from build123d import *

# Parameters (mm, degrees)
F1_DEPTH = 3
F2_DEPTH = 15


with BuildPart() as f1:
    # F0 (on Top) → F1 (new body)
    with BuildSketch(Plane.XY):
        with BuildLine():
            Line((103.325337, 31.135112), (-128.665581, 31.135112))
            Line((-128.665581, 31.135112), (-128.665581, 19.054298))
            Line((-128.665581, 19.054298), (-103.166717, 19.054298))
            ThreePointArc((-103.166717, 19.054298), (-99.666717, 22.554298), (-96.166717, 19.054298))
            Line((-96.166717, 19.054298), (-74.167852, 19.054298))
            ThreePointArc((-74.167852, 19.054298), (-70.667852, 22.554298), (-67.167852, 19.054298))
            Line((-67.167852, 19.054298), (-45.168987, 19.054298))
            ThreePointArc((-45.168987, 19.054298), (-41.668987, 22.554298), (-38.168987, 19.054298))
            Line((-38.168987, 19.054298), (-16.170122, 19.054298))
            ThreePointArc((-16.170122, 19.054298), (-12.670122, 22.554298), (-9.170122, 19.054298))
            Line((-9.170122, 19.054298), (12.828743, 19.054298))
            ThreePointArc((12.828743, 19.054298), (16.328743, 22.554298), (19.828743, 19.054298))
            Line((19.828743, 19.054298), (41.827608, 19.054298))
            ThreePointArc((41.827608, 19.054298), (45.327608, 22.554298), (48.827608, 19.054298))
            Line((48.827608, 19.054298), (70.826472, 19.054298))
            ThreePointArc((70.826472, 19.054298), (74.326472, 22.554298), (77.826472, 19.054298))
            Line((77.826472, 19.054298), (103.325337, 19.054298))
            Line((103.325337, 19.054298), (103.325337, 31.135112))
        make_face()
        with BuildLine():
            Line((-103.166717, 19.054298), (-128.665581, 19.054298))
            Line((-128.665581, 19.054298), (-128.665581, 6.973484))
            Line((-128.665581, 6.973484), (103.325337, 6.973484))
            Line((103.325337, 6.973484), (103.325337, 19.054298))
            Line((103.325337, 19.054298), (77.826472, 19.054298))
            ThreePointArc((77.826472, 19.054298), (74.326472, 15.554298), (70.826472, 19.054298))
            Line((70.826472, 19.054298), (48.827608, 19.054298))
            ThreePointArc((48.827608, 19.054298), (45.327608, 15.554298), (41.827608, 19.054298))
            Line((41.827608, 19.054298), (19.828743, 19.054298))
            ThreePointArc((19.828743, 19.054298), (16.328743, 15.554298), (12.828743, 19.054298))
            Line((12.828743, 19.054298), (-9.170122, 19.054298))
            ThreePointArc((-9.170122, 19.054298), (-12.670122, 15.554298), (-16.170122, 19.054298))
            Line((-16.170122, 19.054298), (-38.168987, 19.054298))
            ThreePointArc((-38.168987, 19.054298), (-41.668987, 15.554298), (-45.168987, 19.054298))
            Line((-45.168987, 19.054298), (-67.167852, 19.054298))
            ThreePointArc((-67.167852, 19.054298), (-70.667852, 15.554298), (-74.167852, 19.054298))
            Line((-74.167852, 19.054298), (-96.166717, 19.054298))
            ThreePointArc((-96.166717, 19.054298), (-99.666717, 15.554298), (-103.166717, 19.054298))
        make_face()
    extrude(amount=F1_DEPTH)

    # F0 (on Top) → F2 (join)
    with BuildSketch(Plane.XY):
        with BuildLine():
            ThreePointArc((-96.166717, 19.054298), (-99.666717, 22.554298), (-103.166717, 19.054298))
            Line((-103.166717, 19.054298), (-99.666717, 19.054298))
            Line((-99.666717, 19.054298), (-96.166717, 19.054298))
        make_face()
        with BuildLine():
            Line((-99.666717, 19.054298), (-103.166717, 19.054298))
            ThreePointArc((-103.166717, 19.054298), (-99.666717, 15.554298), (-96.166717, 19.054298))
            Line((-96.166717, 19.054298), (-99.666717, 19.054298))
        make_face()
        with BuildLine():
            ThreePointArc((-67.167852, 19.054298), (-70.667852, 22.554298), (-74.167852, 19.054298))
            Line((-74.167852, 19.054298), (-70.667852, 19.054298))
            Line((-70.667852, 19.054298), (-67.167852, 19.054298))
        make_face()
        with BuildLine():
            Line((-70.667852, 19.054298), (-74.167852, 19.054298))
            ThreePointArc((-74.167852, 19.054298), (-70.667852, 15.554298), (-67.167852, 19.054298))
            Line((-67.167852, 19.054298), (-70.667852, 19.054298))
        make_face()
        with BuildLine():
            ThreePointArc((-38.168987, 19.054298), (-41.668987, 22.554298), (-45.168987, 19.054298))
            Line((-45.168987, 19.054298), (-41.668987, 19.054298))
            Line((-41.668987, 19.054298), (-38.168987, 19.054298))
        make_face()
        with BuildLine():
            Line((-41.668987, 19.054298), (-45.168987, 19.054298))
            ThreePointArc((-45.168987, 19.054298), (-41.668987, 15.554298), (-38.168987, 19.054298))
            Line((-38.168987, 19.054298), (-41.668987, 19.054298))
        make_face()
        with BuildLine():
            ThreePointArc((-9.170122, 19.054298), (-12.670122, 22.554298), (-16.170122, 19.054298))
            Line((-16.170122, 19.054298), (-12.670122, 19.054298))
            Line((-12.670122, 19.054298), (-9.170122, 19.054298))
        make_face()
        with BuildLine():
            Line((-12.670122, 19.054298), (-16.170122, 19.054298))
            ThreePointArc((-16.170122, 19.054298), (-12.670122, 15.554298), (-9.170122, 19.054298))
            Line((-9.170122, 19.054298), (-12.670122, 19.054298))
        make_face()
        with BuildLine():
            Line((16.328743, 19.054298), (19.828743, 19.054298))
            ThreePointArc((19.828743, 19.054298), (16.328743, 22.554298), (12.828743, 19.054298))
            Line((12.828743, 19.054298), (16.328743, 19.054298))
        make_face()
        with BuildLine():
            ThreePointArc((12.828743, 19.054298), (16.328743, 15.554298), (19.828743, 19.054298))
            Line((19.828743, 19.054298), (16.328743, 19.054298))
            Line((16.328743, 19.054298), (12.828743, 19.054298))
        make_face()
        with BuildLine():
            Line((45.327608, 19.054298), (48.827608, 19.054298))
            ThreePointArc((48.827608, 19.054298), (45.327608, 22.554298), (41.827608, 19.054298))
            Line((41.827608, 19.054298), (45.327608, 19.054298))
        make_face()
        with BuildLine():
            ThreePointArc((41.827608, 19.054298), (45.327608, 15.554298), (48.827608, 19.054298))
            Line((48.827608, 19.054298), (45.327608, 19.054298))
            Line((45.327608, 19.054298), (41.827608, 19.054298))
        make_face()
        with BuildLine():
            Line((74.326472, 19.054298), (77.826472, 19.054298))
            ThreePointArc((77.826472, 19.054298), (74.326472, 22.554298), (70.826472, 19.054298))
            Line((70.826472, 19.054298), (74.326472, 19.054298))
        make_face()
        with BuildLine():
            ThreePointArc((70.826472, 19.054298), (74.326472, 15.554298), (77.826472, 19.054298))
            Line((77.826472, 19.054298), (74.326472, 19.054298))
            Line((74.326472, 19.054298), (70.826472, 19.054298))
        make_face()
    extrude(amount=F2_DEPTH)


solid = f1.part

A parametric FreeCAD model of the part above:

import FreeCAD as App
import Part
import Sketcher
from FreeCAD import Vector
Q = App.Units.Quantity


def add_polygon(sketch, points):
    """Adds a closed chain of lines whose ends are joined by coincident constraints."""
    first, n = sketch.GeometryCount, len(points)
    for a, b in zip(points, points[1:] + points[:1]):
        sketch.addGeometry(Part.LineSegment(App.Vector(*a, 0), App.Vector(*b, 0)), False)
    for i in range(n):
        sketch.addConstraint(Sketcher.Constraint("Coincident", first + i, 2, first + (i + 1) % n, 1))

doc = App.newDocument("Part")
params = doc.addObject("Spreadsheet::Sheet", "Params")
for row, (alias, value) in enumerate([
    ("sketch1_diameter", "7 mm"),
    ("pad1_length", "3 mm"),
    ("sketch2_diameter", "7 mm"),
    ("pad2_length", "15 mm"),
], start=1):
    params.set(f"A{row}", alias)
    params.set(f"B{row}", "=" + value)
    params.setAlias(f"B{row}", alias)

body = doc.addObject("PartDesign::Body", "Body")

# Sketch on XY plane
sketch1 = body.newObject("Sketcher::SketchObject", "Sketch")
sketch1.AttachmentSupport = (doc.getObject("XY_Plane"), [""])
sketch1.MapMode = "FlatFace"
add_polygon(sketch1, [(103.3, 31.1), (-128.7, 31.1), (-128.7, 7), (103.3, 7)])  # lines 0-3
sketch1.addGeometry(Part.Circle(Vector(-99.7, 19.1, 0), Vector(0, 0, 1), 3.5), False)  # 4
sketch1.addGeometry(Part.Circle(Vector(-70.7, 19.1, 0), Vector(0, 0, 1), 3.5), False)  # 5
sketch1.addGeometry(Part.Circle(Vector(-41.7, 19.1, 0), Vector(0, 0, 1), 3.5), False)  # 6
sketch1.addGeometry(Part.Circle(Vector(-12.7, 19.1, 0), Vector(0, 0, 1), 3.5), False)  # 7
sketch1.addGeometry(Part.Circle(Vector(16.3, 19.1, 0), Vector(0, 0, 1), 3.5), False)  # 8
sketch1.addGeometry(Part.Circle(Vector(45.3, 19.1, 0), Vector(0, 0, 1), 3.5), False)  # 9
sketch1.addGeometry(Part.Circle(Vector(74.3, 19.1, 0), Vector(0, 0, 1), 3.5), False)  # 10
sketch1.addConstraint(Sketcher.Constraint("Horizontal", 0))
sketch1.addConstraint(Sketcher.Constraint("Vertical", 1))
sketch1.addConstraint(Sketcher.Constraint("Horizontal", 2))
sketch1.addConstraint(Sketcher.Constraint("Vertical", 3))
sketch1.addConstraint(Sketcher.Constraint("Equal", 4, 5))
sketch1.addConstraint(Sketcher.Constraint("Equal", 5, 6))
sketch1.addConstraint(Sketcher.Constraint("Equal", 6, 7))
sketch1.addConstraint(Sketcher.Constraint("Equal", 7, 8))
sketch1.addConstraint(Sketcher.Constraint("Equal", 8, 9))
sketch1.addConstraint(Sketcher.Constraint("Equal", 9, 10))
sketch1.addConstraint(Sketcher.Constraint("Horizontal", 4, 3, 5, 3))
sketch1.addConstraint(Sketcher.Constraint("Horizontal", 5, 3, 6, 3))
sketch1.addConstraint(Sketcher.Constraint("Horizontal", 6, 3, 7, 3))
sketch1.addConstraint(Sketcher.Constraint("Horizontal", 7, 3, 8, 3))
sketch1.addConstraint(Sketcher.Constraint("Horizontal", 8, 3, 9, 3))
sketch1.addConstraint(Sketcher.Constraint("Horizontal", 9, 3, 10, 3))
sketch1.addConstraint(Sketcher.Constraint("Diameter", 4, Q("7 mm")))
sketch1.addConstraint(Sketcher.Constraint("DistanceX", 0, 2, 0, 1, Q("231.990918 mm")))
sketch1.addConstraint(Sketcher.Constraint("DistanceY", 1, 2, 1, 1, Q("24.161628 mm")))
sketch1.addConstraint(Sketcher.Constraint("DistanceX", 5, 3, -1, 1, Q("70.667852 mm")))
sketch1.addConstraint(Sketcher.Constraint("DistanceX", 7, 3, -1, 1, Q("12.670122 mm")))
sketch1.addConstraint(Sketcher.Constraint("DistanceX", -1, 1, 10, 3, Q("74.326472 mm")))
sketch1.addConstraint(Sketcher.Constraint("DistanceX", 0, 2, -1, 1, Q("128.665581 mm")))
sketch1.addConstraint(Sketcher.Constraint("DistanceY", -1, 1, 0, 2, Q("31.135112 mm")))
sketch1.addConstraint(Sketcher.Constraint("DistanceX", 4, 3, 6, 3, Q("57.99773 mm")))
sketch1.addConstraint(Sketcher.Constraint("DistanceX", 6, 3, 8, 3, Q("57.99773 mm")))
sketch1.addConstraint(Sketcher.Constraint("DistanceX", 7, 3, 9, 3, Q("57.99773 mm")))
sketch1.addConstraint(Sketcher.Constraint("DistanceX", 8, 3, 10, 3, Q("57.997729 mm")))
sketch1.addConstraint(Sketcher.Constraint("DistanceY", -1, 1, 4, 3, Q("19.054298 mm")))
sketch1.setExpression("Constraints[20]", "Params.sketch1_diameter")
pad1 = body.newObject("PartDesign::Pad", "Pad")
pad1.Profile = sketch1
pad1.setExpression("Length", "Params.pad1_length")

# Sketch on XY plane
sketch2 = body.newObject("Sketcher::SketchObject", "Sketch001")
sketch2.AttachmentSupport = (doc.getObject("XY_Plane"), [""])
sketch2.MapMode = "FlatFace"
sketch2.addGeometry(Part.Circle(Vector(-99.7, 19.1, 0), Vector(0, 0, 1), 3.5), False)
sketch2.addGeometry(Part.Circle(Vector(-70.7, 19.1, 0), Vector(0, 0, 1), 3.5), False)
sketch2.addGeometry(Part.Circle(Vector(-41.7, 19.1, 0), Vector(0, 0, 1), 3.5), False)
sketch2.addGeometry(Part.Circle(Vector(-12.7, 19.1, 0), Vector(0, 0, 1), 3.5), False)
sketch2.addGeometry(Part.Circle(Vector(16.3, 19.1, 0), Vector(0, 0, 1), 3.5), False)
sketch2.addGeometry(Part.Circle(Vector(45.3, 19.1, 0), Vector(0, 0, 1), 3.5), False)
sketch2.addGeometry(Part.Circle(Vector(74.3, 19.1, 0), Vector(0, 0, 1), 3.5), False)
sketch2.addConstraint(Sketcher.Constraint("Equal", 0, 1))
sketch2.addConstraint(Sketcher.Constraint("Equal", 1, 2))
sketch2.addConstraint(Sketcher.Constraint("Equal", 2, 3))
sketch2.addConstraint(Sketcher.Constraint("Equal", 3, 4))
sketch2.addConstraint(Sketcher.Constraint("Equal", 4, 5))
sketch2.addConstraint(Sketcher.Constraint("Equal", 5, 6))
sketch2.addConstraint(Sketcher.Constraint("Horizontal", 0, 3, 1, 3))
sketch2.addConstraint(Sketcher.Constraint("Horizontal", 1, 3, 2, 3))
sketch2.addConstraint(Sketcher.Constraint("Horizontal", 2, 3, 3, 3))
sketch2.addConstraint(Sketcher.Constraint("Horizontal", 3, 3, 4, 3))
sketch2.addConstraint(Sketcher.Constraint("Horizontal", 4, 3, 5, 3))
sketch2.addConstraint(Sketcher.Constraint("Horizontal", 5, 3, 6, 3))
sketch2.addConstraint(Sketcher.Constraint("Diameter", 0, Q("7 mm")))
sketch2.addConstraint(Sketcher.Constraint("DistanceX", 1, 3, -1, 1, Q("70.667852 mm")))
sketch2.addConstraint(Sketcher.Constraint("DistanceX", 3, 3, -1, 1, Q("12.670122 mm")))
sketch2.addConstraint(Sketcher.Constraint("DistanceX", -1, 1, 6, 3, Q("74.326472 mm")))
sketch2.addConstraint(Sketcher.Constraint("DistanceX", 0, 3, 2, 3, Q("57.99773 mm")))
sketch2.addConstraint(Sketcher.Constraint("DistanceX", 2, 3, 4, 3, Q("57.99773 mm")))
sketch2.addConstraint(Sketcher.Constraint("DistanceX", 3, 3, 5, 3, Q("57.99773 mm")))
sketch2.addConstraint(Sketcher.Constraint("DistanceX", 4, 3, 6, 3, Q("57.997729 mm")))
sketch2.addConstraint(Sketcher.Constraint("DistanceY", -1, 1, 0, 3, Q("19.054298 mm")))
sketch2.setExpression("Constraints[12]", "Params.sketch2_diameter")
pad2 = body.newObject("PartDesign::Pad", "Pad001")
pad2.Profile = sketch2
pad2.setExpression("Length", "Params.pad2_length")

doc.recompute()
